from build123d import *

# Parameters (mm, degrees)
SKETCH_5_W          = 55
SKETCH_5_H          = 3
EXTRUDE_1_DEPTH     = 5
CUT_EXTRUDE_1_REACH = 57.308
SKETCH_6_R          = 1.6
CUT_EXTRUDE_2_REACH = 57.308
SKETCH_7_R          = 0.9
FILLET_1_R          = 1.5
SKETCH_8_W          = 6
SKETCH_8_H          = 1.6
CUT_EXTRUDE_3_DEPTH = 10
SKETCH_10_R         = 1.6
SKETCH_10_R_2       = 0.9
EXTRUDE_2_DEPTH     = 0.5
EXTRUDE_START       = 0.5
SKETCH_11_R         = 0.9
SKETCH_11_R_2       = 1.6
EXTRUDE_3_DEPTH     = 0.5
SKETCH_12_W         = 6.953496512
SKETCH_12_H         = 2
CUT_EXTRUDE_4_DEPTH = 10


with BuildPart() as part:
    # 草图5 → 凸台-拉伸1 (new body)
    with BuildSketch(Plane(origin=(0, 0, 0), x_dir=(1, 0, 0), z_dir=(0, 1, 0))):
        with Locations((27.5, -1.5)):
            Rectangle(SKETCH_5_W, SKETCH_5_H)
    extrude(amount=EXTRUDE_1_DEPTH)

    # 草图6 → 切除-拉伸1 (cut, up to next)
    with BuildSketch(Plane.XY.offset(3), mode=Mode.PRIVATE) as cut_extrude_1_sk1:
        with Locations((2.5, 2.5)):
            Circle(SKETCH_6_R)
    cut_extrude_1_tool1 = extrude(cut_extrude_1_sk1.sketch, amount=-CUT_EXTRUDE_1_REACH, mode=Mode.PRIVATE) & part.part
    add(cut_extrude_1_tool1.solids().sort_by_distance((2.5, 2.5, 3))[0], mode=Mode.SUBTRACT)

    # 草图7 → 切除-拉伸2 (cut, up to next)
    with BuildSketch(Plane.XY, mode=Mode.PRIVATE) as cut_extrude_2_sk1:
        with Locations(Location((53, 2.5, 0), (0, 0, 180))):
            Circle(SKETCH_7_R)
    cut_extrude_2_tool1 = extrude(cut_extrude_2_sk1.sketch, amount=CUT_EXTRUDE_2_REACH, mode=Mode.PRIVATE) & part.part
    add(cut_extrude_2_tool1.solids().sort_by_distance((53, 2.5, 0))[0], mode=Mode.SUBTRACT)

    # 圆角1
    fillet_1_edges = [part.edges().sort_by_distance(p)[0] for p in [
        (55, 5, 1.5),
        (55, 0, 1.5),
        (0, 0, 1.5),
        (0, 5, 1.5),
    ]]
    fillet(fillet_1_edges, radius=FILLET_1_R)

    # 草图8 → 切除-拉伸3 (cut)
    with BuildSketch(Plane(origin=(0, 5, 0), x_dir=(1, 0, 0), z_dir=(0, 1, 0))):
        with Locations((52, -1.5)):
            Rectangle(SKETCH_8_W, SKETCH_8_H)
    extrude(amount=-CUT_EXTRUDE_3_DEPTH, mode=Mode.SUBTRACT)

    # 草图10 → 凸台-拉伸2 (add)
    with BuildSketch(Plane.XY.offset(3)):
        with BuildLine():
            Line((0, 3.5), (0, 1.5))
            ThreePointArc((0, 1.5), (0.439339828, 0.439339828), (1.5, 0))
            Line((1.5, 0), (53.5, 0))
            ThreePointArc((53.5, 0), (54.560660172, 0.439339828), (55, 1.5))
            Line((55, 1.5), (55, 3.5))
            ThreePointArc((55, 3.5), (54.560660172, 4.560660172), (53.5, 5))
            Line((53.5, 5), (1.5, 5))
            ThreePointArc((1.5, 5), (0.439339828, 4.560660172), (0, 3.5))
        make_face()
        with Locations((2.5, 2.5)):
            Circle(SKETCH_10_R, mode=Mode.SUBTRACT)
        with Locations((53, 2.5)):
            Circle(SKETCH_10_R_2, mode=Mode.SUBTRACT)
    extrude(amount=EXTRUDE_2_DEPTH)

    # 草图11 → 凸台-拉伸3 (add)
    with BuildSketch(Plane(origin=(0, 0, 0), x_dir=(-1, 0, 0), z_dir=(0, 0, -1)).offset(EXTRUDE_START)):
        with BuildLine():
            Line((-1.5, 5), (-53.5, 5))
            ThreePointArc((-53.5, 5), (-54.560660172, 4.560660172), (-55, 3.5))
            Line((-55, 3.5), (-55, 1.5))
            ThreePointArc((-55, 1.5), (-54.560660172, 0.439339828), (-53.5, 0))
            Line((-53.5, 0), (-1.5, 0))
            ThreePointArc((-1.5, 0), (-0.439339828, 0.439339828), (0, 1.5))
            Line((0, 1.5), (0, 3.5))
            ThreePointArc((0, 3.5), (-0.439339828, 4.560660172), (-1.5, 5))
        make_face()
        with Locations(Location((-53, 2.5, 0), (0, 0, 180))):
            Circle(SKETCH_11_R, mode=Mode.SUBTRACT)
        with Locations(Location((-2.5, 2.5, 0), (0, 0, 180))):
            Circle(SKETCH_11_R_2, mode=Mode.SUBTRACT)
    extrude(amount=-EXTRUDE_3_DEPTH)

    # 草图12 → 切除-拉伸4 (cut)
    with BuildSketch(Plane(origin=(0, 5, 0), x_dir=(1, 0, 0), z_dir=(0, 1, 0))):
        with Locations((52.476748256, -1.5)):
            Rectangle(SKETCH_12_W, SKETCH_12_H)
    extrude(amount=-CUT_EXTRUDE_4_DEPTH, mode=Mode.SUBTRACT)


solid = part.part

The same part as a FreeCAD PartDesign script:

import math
import FreeCAD as App
import Part
import Sketcher
from FreeCAD import Vector
Q = App.Units.Quantity


def edges_at(feature, points):
    """Names of the edges that pass closest to the given points."""
    edges = feature.Shape.Edges
    near = lambda p: min(range(len(edges)), key=lambda i: edges[i].distToShape(Part.Vertex(*p))[0])
    return sorted({f"Edge{near(p) + 1}" for p in points})

doc = App.newDocument("Part")
params = doc.addObject("Spreadsheet::Sheet", "Params")
for row, (alias, value) in enumerate([
    ("sketch1_width", "55 mm"),
    ("sketch1_height", "3 mm"),
    ("pad1_length", "5 mm"),
    ("sketch2_diameter", "3.2 mm"),
    ("sketch3_diameter", "1.8 mm"),
    ("fillet_radius", "1.5 mm"),
    ("sketch4_width", "6 mm"),
    ("sketch4_height", "1.6 mm"),
    ("pocket3_length", "10 mm"),
    ("sketch5_diameter", "3.2 mm"),
    ("sketch5_diameter2", "1.8 mm"),
    ("sketch5_radius", "1.5 mm"),
    ("sketch5_width", "52 mm"),
    ("sketch5_height", "2 mm"),
    ("pad2_length", "0.5 mm"),
    ("sketch6_diameter", "1.8 mm"),
    ("sketch6_diameter2", "3.2 mm"),
    ("sketch6_radius", "1.5 mm"),
    ("sketch6_width", "52 mm"),
    ("sketch6_height", "2 mm"),
    ("pad3_length", "0.5 mm"),
    ("sketch7_height", "2 mm"),
    ("pocket4_length", "10 mm"),
], start=1):
    params.set(f"A{row}", alias)
    params.set(f"B{row}", "=" + value)
    params.setAlias(f"B{row}", alias)

body = doc.addObject("PartDesign::Body", "Body")

# Sketch on XZ plane
sketch1 = body.newObject("Sketcher::SketchObject", "Sketch")
sketch1.AttachmentSupport = (doc.getObject("XZ_Plane"), [""])
sketch1.MapMode = "FlatFace"
sketch1.addGeometry([
    Part.LineSegment(Vector(0, 0, 0), Vector(0, 3, 0)),
    Part.LineSegment(Vector(0, 3, 0), Vector(55, 3, 0)),
    Part.LineSegment(Vector(55, 3, 0), Vector(55, 0, 0)),
    Part.LineSegment(Vector(55, 0, 0), Vector(0, 0, 0)),
], False)
sketch1.addConstraint([
    Sketcher.Constraint("Coincident", 0, 2, 1, 1),
    Sketcher.Constraint("Coincident", 1, 2, 2, 1),
    Sketcher.Constraint("Coincident", 2, 2, 3, 1),
    Sketcher.Constraint("Coincident", 3, 2, 0, 1),
    Sketcher.Constraint("Vertical", 0),
    Sketcher.Constraint("Horizontal", 1),
    Sketcher.Constraint("Vertical", 2),
    Sketcher.Constraint("Horizontal", 3),
    Sketcher.Constraint("Coincident", 3, 2, -1, 1),
    Sketcher.Constraint("DistanceX", 1, 1, 1, 2, Q("55 mm")),
    Sketcher.Constraint("DistanceY", 0, 1, 0, 2, Q("3 mm")),
])
sketch1.setExpression("Constraints[9]", "Params.sketch1_width")
sketch1.setExpression("Constraints[10]", "Params.sketch1_height")
pad1 = body.newObject("PartDesign::Pad", "Pad")
pad1.Profile = sketch1
pad1.setExpression("Length", "Params.pad1_length")
pad1.Reversed = True

# Sketch on XY plane
sketch2 = body.newObject("Sketcher::SketchObject", "Sketch001")
sketch2.AttachmentSupport = (doc.getObject("XY_Plane"), [""])
sketch2.MapMode = "FlatFace"
sketch2.AttachmentOffset = App.Placement(Vector(0, 0, 3), App.Rotation())
sketch2.addGeometry(Part.Circle(Vector(2.5, 2.5, 0), Vector(0, 0, 1), 1.6), False)
sketch2.addConstraint([
    Sketcher.Constraint("Diameter", 0, Q("3.2 mm")),
    Sketcher.Constraint("DistanceX", -1, 1, 0, 3, Q("2.5 mm")),
    Sketcher.Constraint("DistanceY", -1, 1, 0, 3, Q("2.5 mm")),
])
sketch2.setExpression("Constraints[0]", "Params.sketch2_diameter")
pocket1 = body.newObject("PartDesign::Pocket", "Pocket")
pocket1.Profile = sketch2
pocket1.Type = "UpToFirst"

# Sketch on XY plane
sketch3 = body.newObject("Sketcher::SketchObject", "Sketch002")
sketch3.AttachmentSupport = (doc.getObject("XY_Plane"), [""])
sketch3.MapMode = "FlatFace"
sketch3.addGeometry(Part.Circle(Vector(53, 2.5, 0), Vector(0, 0, 1), 0.9), False)
sketch3.addConstraint([
    Sketcher.Constraint("Diameter", 0, Q("1.8 mm")),
    Sketcher.Constraint("DistanceX", -1, 1, 0, 3, Q("53 mm")),
    Sketcher.Constraint("DistanceY", -1, 1, 0, 3, Q("2.5 mm")),
])
sketch3.setExpression("Constraints[0]", "Params.sketch3_diameter")
pocket2 = body.newObject("PartDesign::Pocket", "Pocket001")
pocket2.Profile = sketch3
pocket2.Type = "UpToFirst"
pocket2.Reversed = True
doc.recompute()

fillet = body.newObject("PartDesign::Fillet", "Fillet")
fillet.Base = (pocket2, edges_at(pocket2, [
    (55, 5, 1.5),
    (55, 0, 1.5),
    (0, 0, 1.5),
    (0, 5, 1.5),
]))
fillet.setExpression("Radius", "Params.fillet_radius")

# Sketch on XZ plane
sketch4 = body.newObject("Sketcher::SketchObject", "Sketch003")
sketch4.AttachmentSupport = (doc.getObject("XZ_Plane"), [""])
sketch4.MapMode = "FlatFace"
sketch4.AttachmentOffset = App.Placement(Vector(0, 0, -5), App.Rotation())
sketch4.addGeometry([
    Part.LineSegment(Vector(49, 0.7, 0), Vector(49, 2.3, 0)),
    Part.LineSegment(Vector(49, 2.3, 0), Vector(55, 2.3, 0)),
    Part.LineSegment(Vector(55, 2.3, 0), Vector(55, 0.7, 0)),
    Part.LineSegment(Vector(55, 0.7, 0), Vector(49, 0.7, 0)),
], False)
sketch4.addConstraint([
    Sketcher.Constraint("Coincident", 0, 2, 1, 1),
    Sketcher.Constraint("Coincident", 1, 2, 2, 1),
    Sketcher.Constraint("Coincident", 2, 2, 3, 1),
    Sketcher.Constraint("Coincident", 3, 2, 0, 1),
    Sketcher.Constraint("Vertical", 0),
    Sketcher.Constraint("Horizontal", 1),
    Sketcher.Constraint("Vertical", 2),
    Sketcher.Constraint("Horizontal", 3),
    Sketcher.Constraint("DistanceX", 1, 1, 1, 2, Q("6 mm")),
    Sketcher.Constraint("DistanceY", 0, 1, 0, 2, Q("1.6 mm")),
    Sketcher.Constraint("DistanceX", -1, 1, 0, 2, Q("49 mm")),
    Sketcher.Constraint("DistanceY", -1, 1, 0, 2, Q("2.3 mm")),
])
sketch4.setExpression("Constraints[8]", "Params.sketch4_width")
sketch4.setExpression("Constraints[9]", "Params.sketch4_height")
pocket3 = body.newObject("PartDesign::Pocket", "Pocket002")
pocket3.Profile = sketch4
pocket3.setExpression("Length", "Params.pocket3_length")
pocket3.Reversed = True

# Sketch on XY plane
sketch5 = body.newObject("Sketcher::SketchObject", "Sketch004")
sketch5.AttachmentSupport = (doc.getObject("XY_Plane"), [""])
sketch5.MapMode = "FlatFace"
sketch5.AttachmentOffset = App.Placement(Vector(0, 0, 3), App.Rotation())
sketch5.addGeometry([
    Part.LineSegment(Vector(0, 3.5, 0), Vector(0, 1.5, 0)),  # 0
    Part.ArcOfCircle(Part.Circle(Vector(1.5, 1.5, 0), Vector(0, 0, 1), 1.5), math.radians(180), math.radians(270)),  # 1
    Part.LineSegment(Vector(1.5, 0, 0), Vector(53.5, 0, 0)),  # 2
    Part.ArcOfCircle(Part.Circle(Vector(53.5, 1.5, 0), Vector(0, 0, 1), 1.5), math.radians(-90), math.radians(0)),  # 3
    Part.LineSegment(Vector(55, 1.5, 0), Vector(55, 3.5, 0)),  # 4
    Part.ArcOfCircle(Part.Circle(Vector(53.5, 3.5, 0), Vector(0, 0, 1), 1.5), math.radians(0), math.radians(90)),  # 5
    Part.LineSegment(Vector(53.5, 5, 0), Vector(1.5, 5, 0)),  # 6
    Part.ArcOfCircle(Part.Circle(Vector(1.5, 3.5, 0), Vector(0, 0, 1), 1.5), math.radians(90), math.radians(180)),  # 7
    Part.Circle(Vector(2.5, 2.5, 0), Vector(0, 0, 1), 1.6),  # 8
    Part.Circle(Vector(53, 2.5, 0), Vector(0, 0, 1), 0.9),  # 9
], False)
sketch5.addConstraint([
    Sketcher.Constraint("Tangent", 0, 2, 1, 1),
    Sketcher.Constraint("Tangent", 1, 2, 2, 1),
    Sketcher.Constraint("Tangent", 2, 2, 3, 1),
    Sketcher.Constraint("Tangent", 3, 2, 4, 1),
    Sketcher.Constraint("Tangent", 4, 2, 5, 1),
    Sketcher.Constraint("Tangent", 5, 2, 6, 1),
    Sketcher.Constraint("Tangent", 6, 2, 7, 1),
    Sketcher.Constraint("Tangent", 7, 2, 0, 1),
    Sketcher.Constraint("Vertical", 0),
    Sketcher.Constraint("Horizontal", 2),
    Sketcher.Constraint("Vertical", 4),
    Sketcher.Constraint("Horizontal", 6),
    Sketcher.Constraint("Equal", 1, 3),
    Sketcher.Constraint("Equal", 3, 5),
    Sketcher.Constraint("Equal", 5, 7),
    Sketcher.Constraint("PointOnObject", 0, 2, -2),
    Sketcher.Constraint("PointOnObject", 1, 2, -1),
    Sketcher.Constraint("Horizontal", 8, 3, 9, 3),
    Sketcher.Constraint("Diameter", 8, Q("3.2 mm")),
    Sketcher.Constraint("Diameter", 9, Q("1.8 mm")),
    Sketcher.Constraint("Radius", 1, Q("1.5 mm")),
    Sketcher.Constraint("DistanceX", 2, 1, 2, 2, Q("52 mm")),
    Sketcher.Constraint("DistanceY", 0, 2, 0, 1, Q("2 mm")),
    Sketcher.Constraint("DistanceX", -1, 1, 9, 3, Q("53 mm")),
    Sketcher.Constraint("DistanceX", 1, 3, 8, 3, Q("1 mm")),
    Sketcher.Constraint("DistanceY", 1, 3, 8, 3, Q("1 mm")),
])
sketch5.setExpression("Constraints[18]", "Params.sketch5_diameter")
sketch5.setExpression("Constraints[19]", "Params.sketch5_diameter2")
sketch5.setExpression("Constraints[20]", "Params.sketch5_radius")
sketch5.setExpression("Constraints[21]", "Params.sketch5_width")
sketch5.setExpression("Constraints[22]", "Params.sketch5_height")
pad2 = body.newObject("PartDesign::Pad", "Pad001")
pad2.Profile = sketch5
pad2.setExpression("Length", "Params.pad2_length")

# Sketch on XY plane
sketch6 = body.newObject("Sketcher::SketchObject", "Sketch005")
sketch6.AttachmentSupport = (doc.getObject("XY_Plane"), [""])
sketch6.MapMode = "FlatFace"
sketch6.AttachmentOffset = App.Placement(Vector(0, 0, -0.5), App.Rotation())
sketch6.addGeometry([
    Part.LineSegment(Vector(1.5, 5, 0), Vector(53.5, 5, 0)),  # 0
    Part.ArcOfCircle(Part.Circle(Vector(53.5, 3.5, 0), Vector(0, 0, 1), 1.5), math.radians(0), math.radians(90)),  # 1
    Part.LineSegment(Vector(55, 3.5, 0), Vector(55, 1.5, 0)),  # 2
    Part.ArcOfCircle(Part.Circle(Vector(53.5, 1.5, 0), Vector(0, 0, 1), 1.5), math.radians(-90), math.radians(0)),  # 3
    Part.LineSegment(Vector(53.5, 0, 0), Vector(1.5, 0, 0)),  # 4
    Part.ArcOfCircle(Part.Circle(Vector(1.5, 1.5, 0), Vector(0, 0, 1), 1.5), math.radians(180), math.radians(270)),  # 5
    Part.LineSegment(Vector(0, 1.5, 0), Vector(0, 3.5, 0)),  # 6
    Part.ArcOfCircle(Part.Circle(Vector(1.5, 3.5, 0), Vector(0, 0, 1), 1.5), math.radians(90), math.radians(180)),  # 7
    Part.Circle(Vector(53, 2.5, 0), Vector(0, 0, 1), 0.9),  # 8
    Part.Circle(Vector(2.5, 2.5, 0), Vector(0, 0, 1), 1.6),  # 9
], False)
sketch6.addConstraint([
    Sketcher.Constraint("Tangent", 0, 2, 1, 2),
    Sketcher.Constraint("Tangent", 1, 1, 2, 1),
    Sketcher.Constraint("Tangent", 2, 2, 3, 2),
    Sketcher.Constraint("Tangent", 3, 1, 4, 1),
    Sketcher.Constraint("Tangent", 4, 2, 5, 2),
    Sketcher.Constraint("Tangent", 5, 1, 6, 1),
    Sketcher.Constraint("Tangent", 6, 2, 7, 2),
    Sketcher.Constraint("Tangent", 7, 1, 0, 1),
    Sketcher.Constraint("Horizontal", 0),
    Sketcher.Constraint("Vertical", 2),
    Sketcher.Constraint("Horizontal", 4),
    Sketcher.Constraint("Vertical", 6),
    Sketcher.Constraint("Equal", 1, 3),
    Sketcher.Constraint("Equal", 3, 5),
    Sketcher.Constraint("Equal", 5, 7),
    Sketcher.Constraint("PointOnObject", 3, 1, -1),
    Sketcher.Constraint("PointOnObject", 5, 1, -2),
    Sketcher.Constraint("Horizontal", 8, 3, 9, 3),
    Sketcher.Constraint("Diameter", 8, Q("1.8 mm")),
    Sketcher.Constraint("Diameter", 9, Q("3.2 mm")),
    Sketcher.Constraint("Radius", 1, Q("1.5 mm")),
    Sketcher.Constraint("DistanceX", 0, 1, 0, 2, Q("52 mm")),
    Sketcher.Constraint("DistanceY", 2, 2, 2, 1, Q("2 mm")),
    Sketcher.Constraint("DistanceX", -1, 1, 8, 3, Q("53 mm")),
    Sketcher.Constraint("DistanceY", 8, 3, 1, 3, Q("1 mm")),
    Sketcher.Constraint("DistanceX", 5, 3, 9, 3, Q("1 mm")),
])
sketch6.setExpression("Constraints[18]", "Params.sketch6_diameter")
sketch6.setExpression("Constraints[19]", "Params.sketch6_diameter2")
sketch6.setExpression("Constraints[20]", "Params.sketch6_radius")
sketch6.setExpression("Constraints[21]", "Params.sketch6_width")
sketch6.setExpression("Constraints[22]", "Params.sketch6_height")
pad3 = body.newObject("PartDesign::Pad", "Pad002")
pad3.Profile = sketch6
pad3.setExpression("Length", "Params.pad3_length")

# Sketch on XZ plane
sketch7 = body.newObject("Sketcher::SketchObject", "Sketch006")
sketch7.AttachmentSupport = (doc.getObject("XZ_Plane"), [""])
sketch7.MapMode = "FlatFace"
sketch7.AttachmentOffset = App.Placement(Vector(0, 0, -5), App.Rotation())
sketch7.addGeometry([
    Part.LineSegment(Vector(49, 0.5, 0), Vector(49, 2.5, 0)),
    Part.LineSegment(Vector(49, 2.5, 0), Vector(56, 2.5, 0)),
    Part.LineSegment(Vector(56, 2.5, 0), Vector(56, 0.5, 0)),
    Part.LineSegment(Vector(56, 0.5, 0), Vector(49, 0.5, 0)),
], False)
sketch7.addConstraint([
    Sketcher.Constraint("Coincident", 0, 2, 1, 1),
    Sketcher.Constraint("Coincident", 1, 2, 2, 1),
    Sketcher.Constraint("Coincident", 2, 2, 3, 1),
    Sketcher.Constraint("Coincident", 3, 2, 0, 1),
    Sketcher.Constraint("Vertical", 0),
    Sketcher.Constraint("Horizontal", 1),
    Sketcher.Constraint("Vertical", 2),
    Sketcher.Constraint("Horizontal", 3),
    Sketcher.Constraint("DistanceY", 0, 1, 0, 2, Q("2 mm")),
    Sketcher.Constraint("DistanceX", -1, 1, 0, 2, Q("49 mm")),
    Sketcher.Constraint("DistanceY", -1, 1, 0, 2, Q("2.5 mm")),
    Sketcher.Constraint("DistanceX", 1, 1, 1, 2, Q("6.953497 mm")),
])
sketch7.setExpression("Constraints[8]", "Params.sketch7_height")
pocket4 = body.newObject("PartDesign::Pocket", "Pocket003")
pocket4.Profile = sketch7
pocket4.setExpression("Length", "Params.pocket4_length")
pocket4.Reversed = True

doc.recompute()
